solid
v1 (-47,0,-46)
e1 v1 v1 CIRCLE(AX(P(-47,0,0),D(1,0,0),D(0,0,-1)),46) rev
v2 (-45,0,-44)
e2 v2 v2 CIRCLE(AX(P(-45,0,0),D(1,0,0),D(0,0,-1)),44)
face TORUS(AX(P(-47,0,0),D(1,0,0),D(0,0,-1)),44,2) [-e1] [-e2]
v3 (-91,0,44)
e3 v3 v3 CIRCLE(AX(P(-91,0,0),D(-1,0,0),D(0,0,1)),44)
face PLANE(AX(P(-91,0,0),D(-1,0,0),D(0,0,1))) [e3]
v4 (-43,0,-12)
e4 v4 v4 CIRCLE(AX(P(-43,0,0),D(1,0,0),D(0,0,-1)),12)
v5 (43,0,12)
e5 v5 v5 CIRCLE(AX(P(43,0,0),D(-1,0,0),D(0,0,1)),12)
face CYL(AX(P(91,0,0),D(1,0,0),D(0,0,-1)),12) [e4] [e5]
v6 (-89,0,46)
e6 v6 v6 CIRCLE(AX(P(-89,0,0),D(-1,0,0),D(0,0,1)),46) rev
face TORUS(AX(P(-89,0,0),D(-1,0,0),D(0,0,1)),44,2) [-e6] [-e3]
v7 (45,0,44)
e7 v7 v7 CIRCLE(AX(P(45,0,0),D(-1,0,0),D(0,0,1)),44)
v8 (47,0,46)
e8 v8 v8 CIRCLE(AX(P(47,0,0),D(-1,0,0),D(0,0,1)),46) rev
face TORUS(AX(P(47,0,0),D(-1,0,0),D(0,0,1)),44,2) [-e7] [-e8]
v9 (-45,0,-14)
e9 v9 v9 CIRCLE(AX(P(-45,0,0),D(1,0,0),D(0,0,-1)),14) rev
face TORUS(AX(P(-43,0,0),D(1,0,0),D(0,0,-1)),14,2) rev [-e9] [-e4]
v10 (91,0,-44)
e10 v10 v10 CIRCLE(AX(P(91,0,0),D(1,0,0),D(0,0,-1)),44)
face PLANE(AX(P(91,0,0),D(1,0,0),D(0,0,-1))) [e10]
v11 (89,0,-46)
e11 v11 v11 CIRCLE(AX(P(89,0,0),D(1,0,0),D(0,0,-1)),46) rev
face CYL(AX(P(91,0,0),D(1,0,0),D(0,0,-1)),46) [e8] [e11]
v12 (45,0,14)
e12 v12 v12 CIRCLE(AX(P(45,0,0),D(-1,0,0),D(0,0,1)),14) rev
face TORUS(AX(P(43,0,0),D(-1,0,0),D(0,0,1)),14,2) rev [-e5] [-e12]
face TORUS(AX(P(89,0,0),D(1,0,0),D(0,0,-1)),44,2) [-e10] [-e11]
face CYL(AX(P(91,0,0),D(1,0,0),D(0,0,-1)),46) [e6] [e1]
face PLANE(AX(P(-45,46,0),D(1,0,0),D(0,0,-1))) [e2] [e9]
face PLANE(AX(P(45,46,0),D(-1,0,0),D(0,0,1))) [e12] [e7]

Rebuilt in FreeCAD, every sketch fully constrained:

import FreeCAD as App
import Part
import Sketcher


def edges_at(feature, points):
    """Names of the edges that pass closest to the given points."""
    edges = feature.Shape.Edges
    near = lambda p: min(range(len(edges)), key=lambda i: edges[i].distToShape(Part.Vertex(*p))[0])
    return sorted({f"Edge{near(p) + 1}" for p in points})


def add_polygon(sketch, points):
    """Adds a closed chain of lines whose ends are joined by coincident constraints."""
    first, n = sketch.GeometryCount, len(points)
    for a, b in zip(points, points[1:] + points[:1]):
        sketch.addGeometry(Part.LineSegment(App.Vector(*a, 0), App.Vector(*b, 0)), False)
    for i in range(n):
        sketch.addConstraint(Sketcher.Constraint("Coincident", first + i, 2, first + (i + 1) % n, 1))

doc = App.newDocument("Part")
params = doc.addObject("Spreadsheet::Sheet", "Params")
for row, (alias, value) in enumerate([
    ("sketch1_width", "182 mm"),
    ("sketch1_width2", "46 mm"),
    ("sketch1_height", "34 mm"),
    ("revolution_angle", "360 deg"),
    ("fillet_radius", "2 mm"),
], start=1):
    params.set(f"A{row}", alias)
    params.set(f"B{row}", "=" + value)
    params.setAlias(f"B{row}", alias)

body = doc.addObject("PartDesign::Body", "Body")

# Sketch on XY plane
sketch1 = body.newObject("Sketcher::SketchObject", "Sketch")
sketch1.AttachmentSupport = (doc.getObject("XY_Plane"), [""])
sketch1.MapMode = "FlatFace"
add_polygon(sketch1, [(-91, 0), (91, 0), (91, 46), (45, 46), (45, 12), (-45, 12), (-45, 46), (-91, 46)])  # lines 0-7
sketch1.addConstraint([
    Sketcher.Constraint("Horizontal", 0),
    Sketcher.Constraint("Vertical", 1),
    Sketcher.Constraint("Horizontal", 2),
    Sketcher.Constraint("Vertical", 3),
    Sketcher.Constraint("Horizontal", 4),
    Sketcher.Constraint("Vertical", 5),
    Sketcher.Constraint("Horizontal", 6),
    Sketcher.Constraint("Vertical", 7),
    Sketcher.Constraint("Symmetric", 0, 2, 7, 2, -1, 1),
    Sketcher.Constraint("Symmetric", 2, 2, 5, 2, -2),
    Sketcher.Constraint("Equal", 6, 1),
    Sketcher.Constraint("DistanceX", 0, 1, 0, 2, 182.0),
    Sketcher.Constraint("DistanceX", 2, 2, 2, 1, 46.0),
    Sketcher.Constraint("DistanceY", 3, 2, 3, 1, 34.0),
])
sketch1.setExpression("Constraints[19]", "Params.sketch1_width")
sketch1.setExpression("Constraints[20]", "Params.sketch1_width2")
sketch1.setExpression("Constraints[21]", "Params.sketch1_height")
revolution = body.newObject("PartDesign::Revolution", "Revolution")
revolution.Profile = sketch1
revolution.ReferenceAxis = (sketch1, ["H_Axis"])
revolution.setExpression("Angle", "Params.revolution_angle")
doc.recompute()

fillet = body.newObject("PartDesign::Fillet", "Fillet")
fillet.Base = (revolution, edges_at(revolution, [
    (-91, 0, 46),
    (-45, 0, 46),
    (-45, 0, 12),
    (45, 0, 12),
    (45, 0, 46),
    (91, 0, 46),
]))
fillet.setExpression("Radius", "Params.fillet_radius")

doc.recompute()
